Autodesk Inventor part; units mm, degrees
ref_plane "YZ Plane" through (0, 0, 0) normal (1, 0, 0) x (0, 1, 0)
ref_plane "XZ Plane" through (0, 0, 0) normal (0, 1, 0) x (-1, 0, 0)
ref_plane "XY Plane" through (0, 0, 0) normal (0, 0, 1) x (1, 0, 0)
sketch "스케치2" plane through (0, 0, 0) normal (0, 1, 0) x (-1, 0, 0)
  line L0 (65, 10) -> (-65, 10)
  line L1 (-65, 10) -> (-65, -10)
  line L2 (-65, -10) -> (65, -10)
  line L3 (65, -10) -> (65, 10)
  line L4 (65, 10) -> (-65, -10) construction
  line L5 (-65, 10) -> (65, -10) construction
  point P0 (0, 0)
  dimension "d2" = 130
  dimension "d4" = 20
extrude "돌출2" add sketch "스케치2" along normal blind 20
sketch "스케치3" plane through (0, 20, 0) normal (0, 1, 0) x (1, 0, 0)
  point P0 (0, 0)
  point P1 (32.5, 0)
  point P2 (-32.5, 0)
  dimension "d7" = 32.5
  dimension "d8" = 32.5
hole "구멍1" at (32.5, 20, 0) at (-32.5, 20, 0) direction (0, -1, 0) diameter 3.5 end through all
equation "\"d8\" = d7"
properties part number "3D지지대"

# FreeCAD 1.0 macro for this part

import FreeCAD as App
import Part
import Sketcher

V = App.Vector
Q = App.Units.Quantity


def add_polygon(sketch, points):
    """Adds a closed chain of lines whose ends are joined by coincident constraints."""
    first, n = sketch.GeometryCount, len(points)
    for a, b in zip(points, points[1:] + points[:1]):
        sketch.addGeometry(Part.LineSegment(App.Vector(*a, 0), App.Vector(*b, 0)), False)
    for i in range(n):
        sketch.addConstraint(Sketcher.Constraint("Coincident", first + i, 2, first + (i + 1) % n, 1))

doc = App.newDocument("Part")
body = doc.addObject("PartDesign::Body", "Body")

# Sketch on XZ plane
sketch1 = body.newObject("Sketcher::SketchObject", "Sketch")
sketch1.AttachmentSupport = (doc.getObject("XZ_Plane"), [""])
sketch1.MapMode = "FlatFace"
add_polygon(sketch1, [(-65, -10), (-65, 10), (65, 10), (65, -10)])  # lines 0-3
sketch1.addConstraint([
    Sketcher.Constraint("Vertical", 0),
    Sketcher.Constraint("Horizontal", 1),
    Sketcher.Constraint("Vertical", 2),
    Sketcher.Constraint("Horizontal", 3),
    Sketcher.Constraint("Symmetric", 0, 2, 2, 2, -1, 1),
    Sketcher.Constraint("DistanceX", 1, 1, 1, 2, Q("130 mm")),
    Sketcher.Constraint("DistanceY", 0, 1, 0, 2, Q("20 mm")),
])
pad1 = body.newObject("PartDesign::Pad", "Pad")
pad1.Profile = sketch1
pad1.Length = 20
pad1.Reversed = True

# Sketch on XZ plane
sketch2 = body.newObject("Sketcher::SketchObject", "Sketch001")
sketch2.AttachmentSupport = (doc.getObject("XZ_Plane"), [""])
sketch2.MapMode = "FlatFace"
sketch2.AttachmentOffset = App.Placement(V(0, 0, -20), App.Rotation())
sketch2.addGeometry([
    Part.Circle(V(32.5, 0, 0), V(0, 0, 1), 1.75),
    Part.Circle(V(-32.5, 0, 0), V(0, 0, 1), 1.75),
], False)
sketch2.addConstraint([
    Sketcher.Constraint("Equal", 0, 1),
    Sketcher.Constraint("Symmetric", 0, 3, 1, 3, -1, 1),
    Sketcher.Constraint("PointOnObject", 0, 3, -1),
    Sketcher.Constraint("Diameter", 0, Q("3.5 mm")),
    Sketcher.Constraint("DistanceX", 1, 3, 0, 3, Q("65 mm")),
])
doc.recompute()
hole = body.newObject("PartDesign::Hole", "Hole")
hole.Profile = sketch2
hole.ThreadType = "None"
hole.Diameter = 3.5
hole.DepthType = "ThroughAll"
hole.Reversed = True

doc.recompute()
